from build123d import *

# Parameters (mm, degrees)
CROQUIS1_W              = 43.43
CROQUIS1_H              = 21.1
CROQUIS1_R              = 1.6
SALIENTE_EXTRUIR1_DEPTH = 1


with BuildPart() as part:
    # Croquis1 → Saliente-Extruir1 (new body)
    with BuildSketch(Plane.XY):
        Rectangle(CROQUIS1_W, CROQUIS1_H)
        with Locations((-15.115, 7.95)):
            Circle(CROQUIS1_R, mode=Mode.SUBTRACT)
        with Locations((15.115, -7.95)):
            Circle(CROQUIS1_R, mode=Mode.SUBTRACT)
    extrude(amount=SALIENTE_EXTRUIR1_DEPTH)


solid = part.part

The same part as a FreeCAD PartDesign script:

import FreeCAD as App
import Part
import Sketcher
from FreeCAD import Vector
Q = App.Units.Quantity

doc = App.newDocument("Part")
body = doc.addObject("PartDesign::Body", "Body")

# Sketch on XY plane
sketch1 = body.newObject("Sketcher::SketchObject", "Sketch")
sketch1.AttachmentSupport = (doc.getObject("XY_Plane"), [""])
sketch1.MapMode = "FlatFace"
sketch1.addGeometry(Part.LineSegment(Vector(-21.7, 10.6, 0), Vector(-21.7, -10.6, 0)), False)
sketch1.addGeometry(Part.LineSegment(Vector(-21.7, -10.6, 0), Vector(21.7, -10.6, 0)), False)
sketch1.addGeometry(Part.LineSegment(Vector(21.7, -10.6, 0), Vector(21.7, 10.6, 0)), False)
sketch1.addGeometry(Part.LineSegment(Vector(21.7, 10.6, 0), Vector(-21.7, 10.6, 0)), False)
sketch1.addGeometry(Part.Circle(Vector(15.1, -8, 0), Vector(0, 0, 1), 1.6), False)
sketch1.addGeometry(Part.Circle(Vector(-15.1, 8, 0), Vector(0, 0, 1), 1.6), False)
sketch1.addConstraint(Sketcher.Constraint("Coincident", 0, 2, 1, 1))
sketch1.addConstraint(Sketcher.Constraint("Coincident", 1, 2, 2, 1))
sketch1.addConstraint(Sketcher.Constraint("Coincident", 2, 2, 3, 1))
sketch1.addConstraint(Sketcher.Constraint("Coincident", 3, 2, 0, 1))
sketch1.addConstraint(Sketcher.Constraint("Vertical", 0))
sketch1.addConstraint(Sketcher.Constraint("Horizontal", 1))
sketch1.addConstraint(Sketcher.Constraint("Vertical", 2))
sketch1.addConstraint(Sketcher.Constraint("Horizontal", 3))
sketch1.addConstraint(Sketcher.Constraint("Equal", 4, 5))
sketch1.addConstraint(Sketcher.Constraint("Symmetric", 4, 3, 5, 3, -1, 1))
sketch1.addConstraint(Sketcher.Constraint("Symmetric", 0, 2, 2, 2, -1, 1))
sketch1.addConstraint(Sketcher.Constraint("Diameter", 4, Q("3.2 mm")))
sketch1.addConstraint(Sketcher.Constraint("DistanceY", 0, 2, 0, 1, Q("21.1 mm")))
sketch1.addConstraint(Sketcher.Constraint("DistanceX", 1, 1, 1, 2, Q("43.43 mm")))
sketch1.addConstraint(Sketcher.Constraint("DistanceY", 4, 3, 5, 3, Q("15.9 mm")))
sketch1.addConstraint(Sketcher.Constraint("DistanceX", 0, 2, 5, 3, Q("6.6 mm")))
pad1 = body.newObject("PartDesign::Pad", "Pad")
pad1.Profile = sketch1
pad1.Length = 1

doc.recompute()
